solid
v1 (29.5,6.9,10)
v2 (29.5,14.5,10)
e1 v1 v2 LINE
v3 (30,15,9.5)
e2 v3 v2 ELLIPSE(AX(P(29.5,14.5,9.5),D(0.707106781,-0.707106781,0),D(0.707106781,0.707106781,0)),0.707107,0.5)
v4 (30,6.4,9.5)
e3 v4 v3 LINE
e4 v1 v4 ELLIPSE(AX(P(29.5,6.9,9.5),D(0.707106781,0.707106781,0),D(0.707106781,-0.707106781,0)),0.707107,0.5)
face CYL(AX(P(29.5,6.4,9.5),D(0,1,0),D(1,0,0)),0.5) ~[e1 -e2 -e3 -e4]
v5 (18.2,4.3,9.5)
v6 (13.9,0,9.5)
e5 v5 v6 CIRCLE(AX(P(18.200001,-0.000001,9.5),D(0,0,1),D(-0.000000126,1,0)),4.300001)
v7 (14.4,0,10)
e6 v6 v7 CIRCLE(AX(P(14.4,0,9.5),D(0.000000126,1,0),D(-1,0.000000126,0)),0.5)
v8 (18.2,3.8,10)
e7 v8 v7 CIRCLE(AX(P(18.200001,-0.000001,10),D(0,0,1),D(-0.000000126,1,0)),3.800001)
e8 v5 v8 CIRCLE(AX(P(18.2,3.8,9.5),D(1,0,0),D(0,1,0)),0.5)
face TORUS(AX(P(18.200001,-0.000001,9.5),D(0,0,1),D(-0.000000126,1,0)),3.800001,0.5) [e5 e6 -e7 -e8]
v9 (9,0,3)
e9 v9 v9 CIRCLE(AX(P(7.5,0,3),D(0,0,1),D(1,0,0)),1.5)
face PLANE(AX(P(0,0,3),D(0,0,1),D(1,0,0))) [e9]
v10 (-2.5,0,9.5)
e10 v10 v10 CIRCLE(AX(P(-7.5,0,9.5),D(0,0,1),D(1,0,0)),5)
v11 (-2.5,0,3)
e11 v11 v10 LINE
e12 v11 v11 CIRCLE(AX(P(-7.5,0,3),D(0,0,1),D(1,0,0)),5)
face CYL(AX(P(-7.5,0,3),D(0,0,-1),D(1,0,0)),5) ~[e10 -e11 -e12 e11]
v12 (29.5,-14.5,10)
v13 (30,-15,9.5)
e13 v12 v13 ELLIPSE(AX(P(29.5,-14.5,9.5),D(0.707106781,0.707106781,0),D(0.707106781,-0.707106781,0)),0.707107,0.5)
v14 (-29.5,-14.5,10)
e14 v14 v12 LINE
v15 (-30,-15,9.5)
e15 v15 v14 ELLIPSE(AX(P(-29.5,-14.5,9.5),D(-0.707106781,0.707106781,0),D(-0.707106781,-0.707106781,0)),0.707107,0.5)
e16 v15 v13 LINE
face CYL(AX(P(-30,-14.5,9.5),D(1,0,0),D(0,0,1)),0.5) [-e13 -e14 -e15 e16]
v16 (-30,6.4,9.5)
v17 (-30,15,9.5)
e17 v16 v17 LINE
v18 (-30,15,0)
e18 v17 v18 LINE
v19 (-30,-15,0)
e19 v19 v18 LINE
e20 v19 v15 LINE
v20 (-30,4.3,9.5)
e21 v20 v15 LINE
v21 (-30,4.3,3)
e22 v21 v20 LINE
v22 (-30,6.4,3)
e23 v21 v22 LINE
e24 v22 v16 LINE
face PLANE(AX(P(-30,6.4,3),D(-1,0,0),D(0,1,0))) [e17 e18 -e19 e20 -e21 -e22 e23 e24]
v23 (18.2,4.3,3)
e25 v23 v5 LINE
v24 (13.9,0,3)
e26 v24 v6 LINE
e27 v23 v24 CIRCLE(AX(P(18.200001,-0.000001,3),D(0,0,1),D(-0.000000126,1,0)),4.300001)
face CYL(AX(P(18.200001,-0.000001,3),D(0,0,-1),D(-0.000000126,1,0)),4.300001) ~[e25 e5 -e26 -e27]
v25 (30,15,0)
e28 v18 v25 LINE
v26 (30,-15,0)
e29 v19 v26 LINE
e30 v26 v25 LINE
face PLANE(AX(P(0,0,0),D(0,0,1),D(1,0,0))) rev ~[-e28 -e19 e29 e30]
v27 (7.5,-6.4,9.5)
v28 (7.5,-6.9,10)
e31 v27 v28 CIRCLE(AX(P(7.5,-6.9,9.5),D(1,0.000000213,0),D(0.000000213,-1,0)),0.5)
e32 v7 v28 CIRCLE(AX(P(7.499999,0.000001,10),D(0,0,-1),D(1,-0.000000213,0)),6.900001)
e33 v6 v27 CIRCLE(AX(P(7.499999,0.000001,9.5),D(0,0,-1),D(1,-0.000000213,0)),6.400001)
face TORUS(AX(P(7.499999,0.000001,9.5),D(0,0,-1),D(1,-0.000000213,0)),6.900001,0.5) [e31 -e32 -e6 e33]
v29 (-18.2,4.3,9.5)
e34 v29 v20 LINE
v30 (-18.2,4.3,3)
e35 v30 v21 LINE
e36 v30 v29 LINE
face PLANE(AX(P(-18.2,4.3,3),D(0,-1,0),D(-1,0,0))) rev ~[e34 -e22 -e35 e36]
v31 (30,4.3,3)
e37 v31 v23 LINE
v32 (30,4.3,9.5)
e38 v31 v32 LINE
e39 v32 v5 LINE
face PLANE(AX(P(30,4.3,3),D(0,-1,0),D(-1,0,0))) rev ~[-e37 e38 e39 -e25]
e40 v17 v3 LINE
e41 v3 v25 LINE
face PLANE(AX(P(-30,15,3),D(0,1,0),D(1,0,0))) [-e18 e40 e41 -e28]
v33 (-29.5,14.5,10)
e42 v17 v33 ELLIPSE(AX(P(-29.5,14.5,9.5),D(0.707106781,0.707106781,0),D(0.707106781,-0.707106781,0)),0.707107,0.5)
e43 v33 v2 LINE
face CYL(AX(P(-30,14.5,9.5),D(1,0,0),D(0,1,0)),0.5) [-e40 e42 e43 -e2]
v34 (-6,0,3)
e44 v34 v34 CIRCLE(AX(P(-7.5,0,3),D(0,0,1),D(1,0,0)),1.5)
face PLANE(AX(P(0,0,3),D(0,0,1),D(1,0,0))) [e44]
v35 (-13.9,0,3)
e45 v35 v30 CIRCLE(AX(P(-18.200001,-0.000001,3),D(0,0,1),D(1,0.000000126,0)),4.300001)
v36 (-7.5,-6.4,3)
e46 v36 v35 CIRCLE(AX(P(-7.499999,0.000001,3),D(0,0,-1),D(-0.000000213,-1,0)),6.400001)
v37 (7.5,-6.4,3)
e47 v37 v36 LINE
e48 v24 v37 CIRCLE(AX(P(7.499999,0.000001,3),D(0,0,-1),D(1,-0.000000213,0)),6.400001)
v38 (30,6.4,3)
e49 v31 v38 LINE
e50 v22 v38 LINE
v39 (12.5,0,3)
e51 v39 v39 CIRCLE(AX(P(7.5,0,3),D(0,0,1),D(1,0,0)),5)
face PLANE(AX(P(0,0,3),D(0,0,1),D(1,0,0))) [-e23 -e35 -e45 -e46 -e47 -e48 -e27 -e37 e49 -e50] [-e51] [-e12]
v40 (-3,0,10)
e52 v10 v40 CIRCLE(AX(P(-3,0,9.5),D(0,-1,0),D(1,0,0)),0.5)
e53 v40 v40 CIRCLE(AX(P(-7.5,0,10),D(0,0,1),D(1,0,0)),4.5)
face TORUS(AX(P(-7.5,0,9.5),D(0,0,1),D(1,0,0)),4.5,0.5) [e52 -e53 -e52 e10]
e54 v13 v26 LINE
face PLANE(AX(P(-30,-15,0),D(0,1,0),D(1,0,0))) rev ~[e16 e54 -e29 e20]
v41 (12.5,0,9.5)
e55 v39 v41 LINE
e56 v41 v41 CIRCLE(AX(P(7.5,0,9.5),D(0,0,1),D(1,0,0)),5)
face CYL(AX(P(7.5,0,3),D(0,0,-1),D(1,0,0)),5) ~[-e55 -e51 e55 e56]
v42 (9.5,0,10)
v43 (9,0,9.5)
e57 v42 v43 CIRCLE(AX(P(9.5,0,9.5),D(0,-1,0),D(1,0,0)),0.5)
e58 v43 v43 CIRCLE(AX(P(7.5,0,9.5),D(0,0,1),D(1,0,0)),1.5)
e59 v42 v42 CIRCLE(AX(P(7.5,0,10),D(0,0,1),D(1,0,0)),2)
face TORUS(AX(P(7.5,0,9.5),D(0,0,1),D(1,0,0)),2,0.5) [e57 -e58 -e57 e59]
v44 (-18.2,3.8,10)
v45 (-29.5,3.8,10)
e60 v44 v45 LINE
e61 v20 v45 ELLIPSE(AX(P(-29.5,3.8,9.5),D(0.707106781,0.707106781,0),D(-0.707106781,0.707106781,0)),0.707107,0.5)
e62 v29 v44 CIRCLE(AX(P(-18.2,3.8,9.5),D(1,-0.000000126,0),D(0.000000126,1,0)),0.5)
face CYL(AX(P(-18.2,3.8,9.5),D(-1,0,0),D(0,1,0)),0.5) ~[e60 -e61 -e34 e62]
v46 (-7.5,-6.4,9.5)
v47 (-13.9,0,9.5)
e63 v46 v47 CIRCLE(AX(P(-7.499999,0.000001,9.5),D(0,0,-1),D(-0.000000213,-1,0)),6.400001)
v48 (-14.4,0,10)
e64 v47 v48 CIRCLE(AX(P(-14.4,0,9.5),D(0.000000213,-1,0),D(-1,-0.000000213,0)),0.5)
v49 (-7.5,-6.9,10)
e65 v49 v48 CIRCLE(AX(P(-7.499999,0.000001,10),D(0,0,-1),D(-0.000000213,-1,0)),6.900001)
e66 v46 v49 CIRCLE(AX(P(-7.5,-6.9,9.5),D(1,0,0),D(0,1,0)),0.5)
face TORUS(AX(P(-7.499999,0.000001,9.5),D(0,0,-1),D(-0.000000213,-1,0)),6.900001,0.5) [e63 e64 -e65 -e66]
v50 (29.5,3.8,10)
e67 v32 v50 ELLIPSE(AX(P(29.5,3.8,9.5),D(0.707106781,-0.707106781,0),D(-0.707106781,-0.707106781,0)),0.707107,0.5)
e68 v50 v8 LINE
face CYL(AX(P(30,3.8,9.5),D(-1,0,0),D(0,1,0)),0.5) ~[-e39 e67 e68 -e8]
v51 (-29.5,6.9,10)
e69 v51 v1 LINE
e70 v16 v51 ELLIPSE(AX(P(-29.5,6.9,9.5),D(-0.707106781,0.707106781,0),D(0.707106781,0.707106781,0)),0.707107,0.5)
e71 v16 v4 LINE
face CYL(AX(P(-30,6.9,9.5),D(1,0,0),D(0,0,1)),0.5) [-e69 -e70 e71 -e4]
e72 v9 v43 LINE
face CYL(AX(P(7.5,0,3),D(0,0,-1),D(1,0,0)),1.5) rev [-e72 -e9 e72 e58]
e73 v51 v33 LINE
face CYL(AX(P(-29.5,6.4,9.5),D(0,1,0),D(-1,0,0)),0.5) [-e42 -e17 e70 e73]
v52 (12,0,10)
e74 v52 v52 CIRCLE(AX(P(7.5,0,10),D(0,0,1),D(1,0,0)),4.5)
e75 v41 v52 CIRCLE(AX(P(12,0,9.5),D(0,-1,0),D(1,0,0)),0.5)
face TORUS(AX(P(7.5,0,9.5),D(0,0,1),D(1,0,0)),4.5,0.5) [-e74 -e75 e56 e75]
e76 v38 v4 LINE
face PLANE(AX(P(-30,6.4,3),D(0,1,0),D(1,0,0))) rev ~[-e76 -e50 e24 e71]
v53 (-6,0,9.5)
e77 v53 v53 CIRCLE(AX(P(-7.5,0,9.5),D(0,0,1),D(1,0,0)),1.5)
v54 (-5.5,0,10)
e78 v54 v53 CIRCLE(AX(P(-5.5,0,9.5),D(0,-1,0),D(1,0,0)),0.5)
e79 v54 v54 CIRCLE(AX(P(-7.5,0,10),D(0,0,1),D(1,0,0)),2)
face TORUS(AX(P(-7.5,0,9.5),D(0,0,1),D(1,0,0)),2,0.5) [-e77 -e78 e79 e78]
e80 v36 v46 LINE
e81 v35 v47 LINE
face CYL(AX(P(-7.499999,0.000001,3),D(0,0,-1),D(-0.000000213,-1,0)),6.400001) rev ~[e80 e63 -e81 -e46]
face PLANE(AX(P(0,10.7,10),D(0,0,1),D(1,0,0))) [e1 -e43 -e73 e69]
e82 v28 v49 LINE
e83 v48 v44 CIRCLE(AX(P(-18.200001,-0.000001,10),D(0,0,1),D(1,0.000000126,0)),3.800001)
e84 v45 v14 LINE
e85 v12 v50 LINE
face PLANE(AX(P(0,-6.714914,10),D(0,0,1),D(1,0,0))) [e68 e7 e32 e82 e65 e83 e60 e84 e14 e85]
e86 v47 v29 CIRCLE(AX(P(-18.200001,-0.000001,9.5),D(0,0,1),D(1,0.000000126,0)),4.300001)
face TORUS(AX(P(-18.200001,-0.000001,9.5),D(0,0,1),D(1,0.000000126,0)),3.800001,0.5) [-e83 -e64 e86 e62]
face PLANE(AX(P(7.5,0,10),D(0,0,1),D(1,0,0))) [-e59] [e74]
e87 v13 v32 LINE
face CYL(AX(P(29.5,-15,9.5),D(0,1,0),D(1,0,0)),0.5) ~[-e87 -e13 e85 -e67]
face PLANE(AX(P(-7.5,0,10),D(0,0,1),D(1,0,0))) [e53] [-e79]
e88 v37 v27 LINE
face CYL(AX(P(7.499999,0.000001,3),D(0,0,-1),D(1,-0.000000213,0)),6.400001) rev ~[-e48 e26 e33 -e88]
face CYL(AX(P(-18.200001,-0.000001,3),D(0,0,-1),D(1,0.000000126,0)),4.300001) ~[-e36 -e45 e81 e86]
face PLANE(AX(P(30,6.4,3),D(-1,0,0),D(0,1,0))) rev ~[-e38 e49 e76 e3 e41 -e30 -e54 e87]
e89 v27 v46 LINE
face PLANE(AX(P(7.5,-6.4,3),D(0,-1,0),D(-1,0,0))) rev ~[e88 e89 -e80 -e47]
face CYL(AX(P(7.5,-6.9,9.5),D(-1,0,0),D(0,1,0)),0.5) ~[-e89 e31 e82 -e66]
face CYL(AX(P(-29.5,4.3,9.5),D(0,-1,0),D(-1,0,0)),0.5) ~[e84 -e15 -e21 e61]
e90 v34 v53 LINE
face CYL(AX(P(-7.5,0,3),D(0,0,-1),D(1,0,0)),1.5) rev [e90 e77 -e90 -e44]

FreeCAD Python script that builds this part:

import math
import FreeCAD as App
import Part
import Sketcher
Q = App.Units.Quantity


def edges_at(feature, points):
    """Names of the edges that pass closest to the given points."""
    edges = feature.Shape.Edges
    near = lambda p: min(range(len(edges)), key=lambda i: edges[i].distToShape(Part.Vertex(*p))[0])
    return sorted({f"Edge{near(p) + 1}" for p in points})

doc = App.newDocument("Part")
body = doc.addObject("PartDesign::Body", "Body")

# Sketch on XY plane
sketch1 = body.newObject("Sketcher::SketchObject", "Sketch")
sketch1.AttachmentSupport = (doc.getObject("XY_Plane"), [""])
sketch1.MapMode = "FlatFace"
sketch1.addGeometry([
    Part.LineSegment(App.Vector(-30, 15, 0), App.Vector(-30, -15, 0)),
    Part.LineSegment(App.Vector(-30, -15, 0), App.Vector(30, -15, 0)),
    Part.LineSegment(App.Vector(30, -15, 0), App.Vector(30, 15, 0)),
    Part.LineSegment(App.Vector(30, 15, 0), App.Vector(-30, 15, 0)),
], False)
sketch1.addConstraint([
    Sketcher.Constraint("Coincident", 0, 2, 1, 1),
    Sketcher.Constraint("Coincident", 1, 2, 2, 1),
    Sketcher.Constraint("Coincident", 2, 2, 3, 1),
    Sketcher.Constraint("Coincident", 3, 2, 0, 1),
    Sketcher.Constraint("Vertical", 0),
    Sketcher.Constraint("Horizontal", 1),
    Sketcher.Constraint("Vertical", 2),
    Sketcher.Constraint("Horizontal", 3),
    Sketcher.Constraint("Symmetric", 0, 2, 2, 2, -1, 1),
    Sketcher.Constraint("DistanceX", 1, 1, 1, 2, Q("60 mm")),
    Sketcher.Constraint("DistanceY", 0, 2, 0, 1, Q("30 mm")),
])
pad1 = body.newObject("PartDesign::Pad", "Pad")
pad1.Profile = sketch1
pad1.Length = 3

# Sketch on XY plane
sketch2 = body.newObject("Sketcher::SketchObject", "Sketch001")
sketch2.AttachmentSupport = (doc.getObject("XY_Plane"), [""])
sketch2.MapMode = "FlatFace"
sketch2.AttachmentOffset = App.Placement(App.Vector(0, 0, 3), App.Rotation())
sketch2.addGeometry([
    Part.LineSegment(App.Vector(-30, 15, 0), App.Vector(-30, 6.4, 0)),  # 0
    Part.LineSegment(App.Vector(-30, 6.4, 0), App.Vector(30, 6.4, 0)),  # 1
    Part.LineSegment(App.Vector(30, 6.4, 0), App.Vector(30, 15, 0)),  # 2
    Part.LineSegment(App.Vector(30, 15, 0), App.Vector(-30, 15, 0)),  # 3
    Part.Circle(App.Vector(-7.5, 0, 0), App.Vector(0, 0, 1), 5),  # 4
    Part.Circle(App.Vector(-7.5, 0, 0), App.Vector(0, 0, 1), 1.5),  # 5
    Part.Circle(App.Vector(7.5, 0, 0), App.Vector(0, 0, 1), 5),  # 6
    Part.Circle(App.Vector(7.5, 0, 0), App.Vector(0, 0, 1), 1.5),  # 7
    Part.LineSegment(App.Vector(-18.2, 4.3, 0), App.Vector(-30, 4.3, 0)),  # 8
    Part.LineSegment(App.Vector(-30, 4.3, 0), App.Vector(-30, -15, 0)),  # 9
    Part.LineSegment(App.Vector(-30, -15, 0), App.Vector(30, -15, 0)),  # 10
    Part.LineSegment(App.Vector(30, -15, 0), App.Vector(30, 4.3, 0)),  # 11
    Part.LineSegment(App.Vector(30, 4.3, 0), App.Vector(18.2, 4.3, 0)),  # 12
    Part.ArcOfCircle(Part.Circle(App.Vector(18.2, 0, 0), App.Vector(0, 0, 1), 4.3), math.radians(90), math.radians(180)),  # 13
    Part.ArcOfCircle(Part.Circle(App.Vector(7.5, 0, 0), App.Vector(0, 0, 1), 6.4), math.radians(-90), math.radians(0)),  # 14
    Part.LineSegment(App.Vector(7.5, -6.4, 0), App.Vector(-7.5, -6.4, 0)),  # 15
    Part.ArcOfCircle(Part.Circle(App.Vector(-7.5, 0, 0), App.Vector(0, 0, 1), 6.4), math.radians(-180), math.radians(-90)),  # 16
    Part.ArcOfCircle(Part.Circle(App.Vector(-18.2, 0, 0), App.Vector(0, 0, 1), 4.3), math.radians(0), math.radians(90)),  # 17
], False)
sketch2.addConstraint([
    Sketcher.Constraint("Coincident", 0, 2, 1, 1),
    Sketcher.Constraint("Coincident", 1, 2, 2, 1),
    Sketcher.Constraint("Coincident", 2, 2, 3, 1),
    Sketcher.Constraint("Coincident", 3, 2, 0, 1),
    Sketcher.Constraint("Coincident", 8, 2, 9, 1),
    Sketcher.Constraint("Coincident", 9, 2, 10, 1),
    Sketcher.Constraint("Coincident", 10, 2, 11, 1),
    Sketcher.Constraint("Coincident", 11, 2, 12, 1),
    Sketcher.Constraint("Tangent", 12, 2, 13, 1),
    Sketcher.Constraint("Tangent", 13, 2, 14, 2),
    Sketcher.Constraint("Tangent", 14, 1, 15, 1),
    Sketcher.Constraint("Tangent", 15, 2, 16, 2),
    Sketcher.Constraint("Tangent", 16, 1, 17, 1),
    Sketcher.Constraint("Tangent", 17, 2, 8, 1),
    Sketcher.Constraint("Vertical", 0),
    Sketcher.Constraint("Horizontal", 1),
    Sketcher.Constraint("Vertical", 2),
    Sketcher.Constraint("Horizontal", 3),
    Sketcher.Constraint("Horizontal", 8),
    Sketcher.Constraint("Vertical", 9),
    Sketcher.Constraint("Horizontal", 10),
    Sketcher.Constraint("Vertical", 11),
    Sketcher.Constraint("Horizontal", 12),
    Sketcher.Constraint("Horizontal", 15),
    Sketcher.Constraint("Coincident", 5, 3, 4, 3),
    Sketcher.Constraint("Coincident", 7, 3, 6, 3),
    Sketcher.Constraint("Coincident", 14, 3, 6, 3),
    Sketcher.Constraint("Coincident", 16, 3, 4, 3),
    Sketcher.Constraint("Equal", 4, 6),
    Sketcher.Constraint("Equal", 5, 7),
    Sketcher.Constraint("Equal", 14, 16),
    Sketcher.Constraint("Equal", 13, 17),
    Sketcher.Constraint("Symmetric", 4, 3, 6, 3, -1, 1),
    Sketcher.Constraint("Symmetric", 2, 2, 9, 2, -1, 1),
    Sketcher.Constraint("Symmetric", 8, 2, 11, 2, -2),
    Sketcher.Constraint("PointOnObject", 13, 3, -1),
    Sketcher.Constraint("Vertical", 3, 2, 8, 2),
    Sketcher.Constraint("Diameter", 4, Q("10 mm")),
    Sketcher.Constraint("Diameter", 5, Q("3 mm")),
    Sketcher.Constraint("Radius", 13, Q("4.300001 mm")),
    Sketcher.Constraint("Radius", 14, Q("6.400001 mm")),
    Sketcher.Constraint("DistanceX", 1, 1, 1, 2, Q("60 mm")),
    Sketcher.Constraint("DistanceX", 15, 2, 15, 1, Q("15 mm")),
    Sketcher.Constraint("DistanceY", 0, 2, 0, 1, Q("8.6 mm")),
    Sketcher.Constraint("DistanceY", 9, 2, 9, 1, Q("19.3 mm")),
])
pad2 = body.newObject("PartDesign::Pad", "Pad001")
pad2.Profile = sketch2
pad2.Length = 7
doc.recompute()

fillet = body.newObject("PartDesign::Fillet", "Fillet")
fillet.Base = (pad2, edges_at(pad2, [
    (-15.159, 3.041, 10),
    (-24.1, 4.3, 10),
    (-30, -5.35, 10),
    (0, -15, 10),
    (30, -5.35, 10),
    (24.1, 4.3, 10),
    (15.159, 3.041, 10),
    (12.025, -4.525, 10),
    (0, -6.4, 10),
    (-12.025, -4.525, 10),
    (0, 15, 10),
    (-30, 10.7, 10),
    (0, 6.4, 10),
    (30, 10.7, 10),
    (-12.5, 0, 10),
    (-9, 0, 10),
    (2.5, 0, 10),
    (6, 0, 10),
]))
fillet.Radius = 0.5

doc.recompute()
